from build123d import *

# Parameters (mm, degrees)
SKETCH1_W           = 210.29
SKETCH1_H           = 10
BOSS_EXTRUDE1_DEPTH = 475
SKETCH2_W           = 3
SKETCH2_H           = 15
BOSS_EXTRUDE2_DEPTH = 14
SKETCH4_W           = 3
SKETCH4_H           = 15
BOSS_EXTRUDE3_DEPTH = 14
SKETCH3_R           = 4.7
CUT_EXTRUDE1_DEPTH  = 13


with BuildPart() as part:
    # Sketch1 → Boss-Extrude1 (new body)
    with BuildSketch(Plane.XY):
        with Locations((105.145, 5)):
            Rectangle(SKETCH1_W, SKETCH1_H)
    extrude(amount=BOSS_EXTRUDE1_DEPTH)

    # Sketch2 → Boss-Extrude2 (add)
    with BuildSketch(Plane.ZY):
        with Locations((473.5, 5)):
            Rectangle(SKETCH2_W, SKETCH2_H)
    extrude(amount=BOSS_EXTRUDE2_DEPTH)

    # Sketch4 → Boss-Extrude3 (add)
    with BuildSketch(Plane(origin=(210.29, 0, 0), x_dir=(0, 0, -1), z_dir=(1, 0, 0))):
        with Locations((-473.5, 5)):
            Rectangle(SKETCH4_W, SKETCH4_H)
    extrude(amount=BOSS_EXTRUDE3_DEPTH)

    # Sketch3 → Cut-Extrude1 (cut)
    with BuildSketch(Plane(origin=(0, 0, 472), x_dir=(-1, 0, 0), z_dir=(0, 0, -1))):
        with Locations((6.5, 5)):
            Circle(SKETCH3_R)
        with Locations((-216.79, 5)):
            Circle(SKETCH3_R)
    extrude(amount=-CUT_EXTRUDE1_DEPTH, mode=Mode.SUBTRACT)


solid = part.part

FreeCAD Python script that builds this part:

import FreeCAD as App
import Part
import Sketcher

V = App.Vector
Q = App.Units.Quantity


def add_polygon(sketch, points):
    """Adds a closed chain of lines whose ends are joined by coincident constraints."""
    first, n = sketch.GeometryCount, len(points)
    for a, b in zip(points, points[1:] + points[:1]):
        sketch.addGeometry(Part.LineSegment(App.Vector(*a, 0), App.Vector(*b, 0)), False)
    for i in range(n):
        sketch.addConstraint(Sketcher.Constraint("Coincident", first + i, 2, first + (i + 1) % n, 1))

doc = App.newDocument("Part")
body = doc.addObject("PartDesign::Body", "Body")

sketch1 = doc.addObject("Sketcher::SketchObject", "Sketch")
body.addObject(sketch1)
sketch1.AttachmentSupport = (doc.XY_Plane, [""])
sketch1.MapMode = "FlatFace"
add_polygon(sketch1, [(0, 10), (0, 0), (210.29, 0), (210.29, 10)])
sketch1.addConstraint([
    Sketcher.Constraint("Vertical", 0),
    Sketcher.Constraint("Horizontal", 1),
    Sketcher.Constraint("Vertical", 2),
    Sketcher.Constraint("Horizontal", 3),
    Sketcher.Constraint("Coincident", 0, 2, -1, 1),
    Sketcher.Constraint("DistanceY", 0, 2, 0, 1, Q("10 mm")),
    Sketcher.Constraint("DistanceX", 1, 1, 1, 2, Q("210.29 mm")),
])
pad1 = doc.addObject("PartDesign::Pad", "Pad")
body.addObject(pad1)
pad1.Profile = sketch1
pad1.Length = 475

sketch2 = doc.addObject("Sketcher::SketchObject", "Sketch001")
body.addObject(sketch2)
sketch2.AttachmentSupport = (doc.YZ_Plane, [""])
sketch2.MapMode = "FlatFace"
add_polygon(sketch2, [(12.5, 472), (-2.5, 472), (-2.5, 475), (12.5, 475)])
sketch2.addConstraint([
    Sketcher.Constraint("Horizontal", 0),
    Sketcher.Constraint("Vertical", 1),
    Sketcher.Constraint("Horizontal", 2),
    Sketcher.Constraint("Vertical", 3),
    Sketcher.Constraint("DistanceX", 0, 2, 0, 1, Q("15 mm")),
    Sketcher.Constraint("DistanceY", 1, 1, 1, 2, Q("3 mm")),
    Sketcher.Constraint("DistanceY", -1, 1, 0, 2, Q("472 mm")),
    Sketcher.Constraint("DistanceX", 0, 2, -1, 1, Q("2.5 mm")),
])
pad2 = doc.addObject("PartDesign::Pad", "Pad001")
body.addObject(pad2)
pad2.Profile = sketch2
pad2.Length = 14
pad2.Reversed = True

sketch3 = doc.addObject("Sketcher::SketchObject", "Sketch002")
body.addObject(sketch3)
sketch3.AttachmentSupport = (doc.YZ_Plane, [""])
sketch3.MapMode = "FlatFace"
sketch3.AttachmentOffset = App.Placement(V(0, 0, 210.29), App.Rotation())
add_polygon(sketch3, [(12.5, 475), (-2.5, 475), (-2.5, 472), (12.5, 472)])
sketch3.addConstraint([
    Sketcher.Constraint("Horizontal", 0),
    Sketcher.Constraint("Vertical", 1),
    Sketcher.Constraint("Horizontal", 2),
    Sketcher.Constraint("Vertical", 3),
    Sketcher.Constraint("DistanceX", 0, 2, 0, 1, Q("15 mm")),
    Sketcher.Constraint("DistanceY", 1, 2, 1, 1, Q("3 mm")),
    Sketcher.Constraint("DistanceY", -1, 1, 0, 2, Q("475 mm")),
    Sketcher.Constraint("DistanceX", 0, 2, -1, 1, Q("2.5 mm")),
])
pad3 = doc.addObject("PartDesign::Pad", "Pad002")
body.addObject(pad3)
pad3.Profile = sketch3
pad3.Length = 14

sketch4 = doc.addObject("Sketcher::SketchObject", "Sketch003")
body.addObject(sketch4)
sketch4.AttachmentSupport = (doc.XY_Plane, [""])
sketch4.MapMode = "FlatFace"
sketch4.AttachmentOffset = App.Placement(V(0, 0, 472), App.Rotation())
sketch4.addGeometry([
    Part.Circle(V(-6.5, 5, 0), V(0, 0, 1), 4.7),
    Part.Circle(V(216.79, 5, 0), V(0, 0, 1), 4.7),
], False)
sketch4.addConstraint([
    Sketcher.Constraint("Equal", 0, 1),
    Sketcher.Constraint("Horizontal", 0, 3, 1, 3),
    Sketcher.Constraint("Diameter", 0, Q("9.4 mm")),
    Sketcher.Constraint("DistanceY", -1, 1, 0, 3, Q("5 mm")),
    Sketcher.Constraint("DistanceX", 0, 3, -1, 1, Q("6.5 mm")),
    Sketcher.Constraint("DistanceX", -1, 1, 1, 3, Q("216.79 mm")),
])
pocket1 = doc.addObject("PartDesign::Pocket", "Pocket")
body.addObject(pocket1)
pocket1.Profile = sketch4
pocket1.Length = 13
pocket1.Reversed = True

doc.recompute()
